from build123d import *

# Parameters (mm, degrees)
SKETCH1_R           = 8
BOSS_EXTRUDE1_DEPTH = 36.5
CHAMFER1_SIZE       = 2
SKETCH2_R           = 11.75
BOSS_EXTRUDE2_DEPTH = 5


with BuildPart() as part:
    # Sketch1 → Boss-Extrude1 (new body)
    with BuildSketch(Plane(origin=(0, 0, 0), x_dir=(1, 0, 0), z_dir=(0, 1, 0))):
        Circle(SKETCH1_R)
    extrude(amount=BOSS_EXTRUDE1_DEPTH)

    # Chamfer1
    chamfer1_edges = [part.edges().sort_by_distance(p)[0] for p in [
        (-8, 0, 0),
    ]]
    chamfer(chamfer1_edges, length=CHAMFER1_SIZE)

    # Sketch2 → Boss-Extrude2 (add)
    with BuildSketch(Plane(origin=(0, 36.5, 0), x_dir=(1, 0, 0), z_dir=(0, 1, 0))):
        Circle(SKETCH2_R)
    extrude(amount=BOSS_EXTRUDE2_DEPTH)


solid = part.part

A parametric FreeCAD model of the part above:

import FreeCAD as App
import Part
import Sketcher
from FreeCAD import Vector
Q = App.Units.Quantity


def edges_at(feature, points):
    """Names of the edges that pass closest to the given points."""
    edges = feature.Shape.Edges
    near = lambda p: min(range(len(edges)), key=lambda i: edges[i].distToShape(Part.Vertex(*p))[0])
    return sorted({f"Edge{near(p) + 1}" for p in points})

doc = App.newDocument("Part")
body = doc.addObject("PartDesign::Body", "Body")

sketch1 = body.newObject("Sketcher::SketchObject", "Sketch")
sketch1.AttachmentSupport = (doc.getObject("XZ_Plane"), [""])
sketch1.MapMode = "FlatFace"
sketch1.addGeometry(Part.Circle(Vector(0, 0, 0), Vector(0, 0, 1), 8), False)
sketch1.addConstraint(Sketcher.Constraint("Coincident", 0, 3, -1, 1))
sketch1.addConstraint(Sketcher.Constraint("Diameter", 0, Q("16 mm")))
pad1 = body.newObject("PartDesign::Pad", "Pad")
pad1.Profile = sketch1
pad1.Length = 36.5
pad1.Reversed = True
doc.recompute()

chamfer = body.newObject("PartDesign::Chamfer", "Chamfer")
chamfer.Base = (pad1, edges_at(pad1, [(-8, 0, 0)]))
chamfer.Size = 2

sketch2 = body.newObject("Sketcher::SketchObject", "Sketch001")
sketch2.AttachmentSupport = (doc.getObject("XZ_Plane"), [""])
sketch2.MapMode = "FlatFace"
sketch2.AttachmentOffset = App.Placement(Vector(0, 0, -36.5), App.Rotation())
sketch2.addGeometry(Part.Circle(Vector(0, 0, 0), Vector(0, 0, 1), 11.75), False)
sketch2.addConstraint(Sketcher.Constraint("Coincident", 0, 3, -1, 1))
sketch2.addConstraint(Sketcher.Constraint("Diameter", 0, Q("23.5 mm")))
pad2 = body.newObject("PartDesign::Pad", "Pad001")
pad2.Profile = sketch2
pad2.Length = 5
pad2.Reversed = True

doc.recompute()
